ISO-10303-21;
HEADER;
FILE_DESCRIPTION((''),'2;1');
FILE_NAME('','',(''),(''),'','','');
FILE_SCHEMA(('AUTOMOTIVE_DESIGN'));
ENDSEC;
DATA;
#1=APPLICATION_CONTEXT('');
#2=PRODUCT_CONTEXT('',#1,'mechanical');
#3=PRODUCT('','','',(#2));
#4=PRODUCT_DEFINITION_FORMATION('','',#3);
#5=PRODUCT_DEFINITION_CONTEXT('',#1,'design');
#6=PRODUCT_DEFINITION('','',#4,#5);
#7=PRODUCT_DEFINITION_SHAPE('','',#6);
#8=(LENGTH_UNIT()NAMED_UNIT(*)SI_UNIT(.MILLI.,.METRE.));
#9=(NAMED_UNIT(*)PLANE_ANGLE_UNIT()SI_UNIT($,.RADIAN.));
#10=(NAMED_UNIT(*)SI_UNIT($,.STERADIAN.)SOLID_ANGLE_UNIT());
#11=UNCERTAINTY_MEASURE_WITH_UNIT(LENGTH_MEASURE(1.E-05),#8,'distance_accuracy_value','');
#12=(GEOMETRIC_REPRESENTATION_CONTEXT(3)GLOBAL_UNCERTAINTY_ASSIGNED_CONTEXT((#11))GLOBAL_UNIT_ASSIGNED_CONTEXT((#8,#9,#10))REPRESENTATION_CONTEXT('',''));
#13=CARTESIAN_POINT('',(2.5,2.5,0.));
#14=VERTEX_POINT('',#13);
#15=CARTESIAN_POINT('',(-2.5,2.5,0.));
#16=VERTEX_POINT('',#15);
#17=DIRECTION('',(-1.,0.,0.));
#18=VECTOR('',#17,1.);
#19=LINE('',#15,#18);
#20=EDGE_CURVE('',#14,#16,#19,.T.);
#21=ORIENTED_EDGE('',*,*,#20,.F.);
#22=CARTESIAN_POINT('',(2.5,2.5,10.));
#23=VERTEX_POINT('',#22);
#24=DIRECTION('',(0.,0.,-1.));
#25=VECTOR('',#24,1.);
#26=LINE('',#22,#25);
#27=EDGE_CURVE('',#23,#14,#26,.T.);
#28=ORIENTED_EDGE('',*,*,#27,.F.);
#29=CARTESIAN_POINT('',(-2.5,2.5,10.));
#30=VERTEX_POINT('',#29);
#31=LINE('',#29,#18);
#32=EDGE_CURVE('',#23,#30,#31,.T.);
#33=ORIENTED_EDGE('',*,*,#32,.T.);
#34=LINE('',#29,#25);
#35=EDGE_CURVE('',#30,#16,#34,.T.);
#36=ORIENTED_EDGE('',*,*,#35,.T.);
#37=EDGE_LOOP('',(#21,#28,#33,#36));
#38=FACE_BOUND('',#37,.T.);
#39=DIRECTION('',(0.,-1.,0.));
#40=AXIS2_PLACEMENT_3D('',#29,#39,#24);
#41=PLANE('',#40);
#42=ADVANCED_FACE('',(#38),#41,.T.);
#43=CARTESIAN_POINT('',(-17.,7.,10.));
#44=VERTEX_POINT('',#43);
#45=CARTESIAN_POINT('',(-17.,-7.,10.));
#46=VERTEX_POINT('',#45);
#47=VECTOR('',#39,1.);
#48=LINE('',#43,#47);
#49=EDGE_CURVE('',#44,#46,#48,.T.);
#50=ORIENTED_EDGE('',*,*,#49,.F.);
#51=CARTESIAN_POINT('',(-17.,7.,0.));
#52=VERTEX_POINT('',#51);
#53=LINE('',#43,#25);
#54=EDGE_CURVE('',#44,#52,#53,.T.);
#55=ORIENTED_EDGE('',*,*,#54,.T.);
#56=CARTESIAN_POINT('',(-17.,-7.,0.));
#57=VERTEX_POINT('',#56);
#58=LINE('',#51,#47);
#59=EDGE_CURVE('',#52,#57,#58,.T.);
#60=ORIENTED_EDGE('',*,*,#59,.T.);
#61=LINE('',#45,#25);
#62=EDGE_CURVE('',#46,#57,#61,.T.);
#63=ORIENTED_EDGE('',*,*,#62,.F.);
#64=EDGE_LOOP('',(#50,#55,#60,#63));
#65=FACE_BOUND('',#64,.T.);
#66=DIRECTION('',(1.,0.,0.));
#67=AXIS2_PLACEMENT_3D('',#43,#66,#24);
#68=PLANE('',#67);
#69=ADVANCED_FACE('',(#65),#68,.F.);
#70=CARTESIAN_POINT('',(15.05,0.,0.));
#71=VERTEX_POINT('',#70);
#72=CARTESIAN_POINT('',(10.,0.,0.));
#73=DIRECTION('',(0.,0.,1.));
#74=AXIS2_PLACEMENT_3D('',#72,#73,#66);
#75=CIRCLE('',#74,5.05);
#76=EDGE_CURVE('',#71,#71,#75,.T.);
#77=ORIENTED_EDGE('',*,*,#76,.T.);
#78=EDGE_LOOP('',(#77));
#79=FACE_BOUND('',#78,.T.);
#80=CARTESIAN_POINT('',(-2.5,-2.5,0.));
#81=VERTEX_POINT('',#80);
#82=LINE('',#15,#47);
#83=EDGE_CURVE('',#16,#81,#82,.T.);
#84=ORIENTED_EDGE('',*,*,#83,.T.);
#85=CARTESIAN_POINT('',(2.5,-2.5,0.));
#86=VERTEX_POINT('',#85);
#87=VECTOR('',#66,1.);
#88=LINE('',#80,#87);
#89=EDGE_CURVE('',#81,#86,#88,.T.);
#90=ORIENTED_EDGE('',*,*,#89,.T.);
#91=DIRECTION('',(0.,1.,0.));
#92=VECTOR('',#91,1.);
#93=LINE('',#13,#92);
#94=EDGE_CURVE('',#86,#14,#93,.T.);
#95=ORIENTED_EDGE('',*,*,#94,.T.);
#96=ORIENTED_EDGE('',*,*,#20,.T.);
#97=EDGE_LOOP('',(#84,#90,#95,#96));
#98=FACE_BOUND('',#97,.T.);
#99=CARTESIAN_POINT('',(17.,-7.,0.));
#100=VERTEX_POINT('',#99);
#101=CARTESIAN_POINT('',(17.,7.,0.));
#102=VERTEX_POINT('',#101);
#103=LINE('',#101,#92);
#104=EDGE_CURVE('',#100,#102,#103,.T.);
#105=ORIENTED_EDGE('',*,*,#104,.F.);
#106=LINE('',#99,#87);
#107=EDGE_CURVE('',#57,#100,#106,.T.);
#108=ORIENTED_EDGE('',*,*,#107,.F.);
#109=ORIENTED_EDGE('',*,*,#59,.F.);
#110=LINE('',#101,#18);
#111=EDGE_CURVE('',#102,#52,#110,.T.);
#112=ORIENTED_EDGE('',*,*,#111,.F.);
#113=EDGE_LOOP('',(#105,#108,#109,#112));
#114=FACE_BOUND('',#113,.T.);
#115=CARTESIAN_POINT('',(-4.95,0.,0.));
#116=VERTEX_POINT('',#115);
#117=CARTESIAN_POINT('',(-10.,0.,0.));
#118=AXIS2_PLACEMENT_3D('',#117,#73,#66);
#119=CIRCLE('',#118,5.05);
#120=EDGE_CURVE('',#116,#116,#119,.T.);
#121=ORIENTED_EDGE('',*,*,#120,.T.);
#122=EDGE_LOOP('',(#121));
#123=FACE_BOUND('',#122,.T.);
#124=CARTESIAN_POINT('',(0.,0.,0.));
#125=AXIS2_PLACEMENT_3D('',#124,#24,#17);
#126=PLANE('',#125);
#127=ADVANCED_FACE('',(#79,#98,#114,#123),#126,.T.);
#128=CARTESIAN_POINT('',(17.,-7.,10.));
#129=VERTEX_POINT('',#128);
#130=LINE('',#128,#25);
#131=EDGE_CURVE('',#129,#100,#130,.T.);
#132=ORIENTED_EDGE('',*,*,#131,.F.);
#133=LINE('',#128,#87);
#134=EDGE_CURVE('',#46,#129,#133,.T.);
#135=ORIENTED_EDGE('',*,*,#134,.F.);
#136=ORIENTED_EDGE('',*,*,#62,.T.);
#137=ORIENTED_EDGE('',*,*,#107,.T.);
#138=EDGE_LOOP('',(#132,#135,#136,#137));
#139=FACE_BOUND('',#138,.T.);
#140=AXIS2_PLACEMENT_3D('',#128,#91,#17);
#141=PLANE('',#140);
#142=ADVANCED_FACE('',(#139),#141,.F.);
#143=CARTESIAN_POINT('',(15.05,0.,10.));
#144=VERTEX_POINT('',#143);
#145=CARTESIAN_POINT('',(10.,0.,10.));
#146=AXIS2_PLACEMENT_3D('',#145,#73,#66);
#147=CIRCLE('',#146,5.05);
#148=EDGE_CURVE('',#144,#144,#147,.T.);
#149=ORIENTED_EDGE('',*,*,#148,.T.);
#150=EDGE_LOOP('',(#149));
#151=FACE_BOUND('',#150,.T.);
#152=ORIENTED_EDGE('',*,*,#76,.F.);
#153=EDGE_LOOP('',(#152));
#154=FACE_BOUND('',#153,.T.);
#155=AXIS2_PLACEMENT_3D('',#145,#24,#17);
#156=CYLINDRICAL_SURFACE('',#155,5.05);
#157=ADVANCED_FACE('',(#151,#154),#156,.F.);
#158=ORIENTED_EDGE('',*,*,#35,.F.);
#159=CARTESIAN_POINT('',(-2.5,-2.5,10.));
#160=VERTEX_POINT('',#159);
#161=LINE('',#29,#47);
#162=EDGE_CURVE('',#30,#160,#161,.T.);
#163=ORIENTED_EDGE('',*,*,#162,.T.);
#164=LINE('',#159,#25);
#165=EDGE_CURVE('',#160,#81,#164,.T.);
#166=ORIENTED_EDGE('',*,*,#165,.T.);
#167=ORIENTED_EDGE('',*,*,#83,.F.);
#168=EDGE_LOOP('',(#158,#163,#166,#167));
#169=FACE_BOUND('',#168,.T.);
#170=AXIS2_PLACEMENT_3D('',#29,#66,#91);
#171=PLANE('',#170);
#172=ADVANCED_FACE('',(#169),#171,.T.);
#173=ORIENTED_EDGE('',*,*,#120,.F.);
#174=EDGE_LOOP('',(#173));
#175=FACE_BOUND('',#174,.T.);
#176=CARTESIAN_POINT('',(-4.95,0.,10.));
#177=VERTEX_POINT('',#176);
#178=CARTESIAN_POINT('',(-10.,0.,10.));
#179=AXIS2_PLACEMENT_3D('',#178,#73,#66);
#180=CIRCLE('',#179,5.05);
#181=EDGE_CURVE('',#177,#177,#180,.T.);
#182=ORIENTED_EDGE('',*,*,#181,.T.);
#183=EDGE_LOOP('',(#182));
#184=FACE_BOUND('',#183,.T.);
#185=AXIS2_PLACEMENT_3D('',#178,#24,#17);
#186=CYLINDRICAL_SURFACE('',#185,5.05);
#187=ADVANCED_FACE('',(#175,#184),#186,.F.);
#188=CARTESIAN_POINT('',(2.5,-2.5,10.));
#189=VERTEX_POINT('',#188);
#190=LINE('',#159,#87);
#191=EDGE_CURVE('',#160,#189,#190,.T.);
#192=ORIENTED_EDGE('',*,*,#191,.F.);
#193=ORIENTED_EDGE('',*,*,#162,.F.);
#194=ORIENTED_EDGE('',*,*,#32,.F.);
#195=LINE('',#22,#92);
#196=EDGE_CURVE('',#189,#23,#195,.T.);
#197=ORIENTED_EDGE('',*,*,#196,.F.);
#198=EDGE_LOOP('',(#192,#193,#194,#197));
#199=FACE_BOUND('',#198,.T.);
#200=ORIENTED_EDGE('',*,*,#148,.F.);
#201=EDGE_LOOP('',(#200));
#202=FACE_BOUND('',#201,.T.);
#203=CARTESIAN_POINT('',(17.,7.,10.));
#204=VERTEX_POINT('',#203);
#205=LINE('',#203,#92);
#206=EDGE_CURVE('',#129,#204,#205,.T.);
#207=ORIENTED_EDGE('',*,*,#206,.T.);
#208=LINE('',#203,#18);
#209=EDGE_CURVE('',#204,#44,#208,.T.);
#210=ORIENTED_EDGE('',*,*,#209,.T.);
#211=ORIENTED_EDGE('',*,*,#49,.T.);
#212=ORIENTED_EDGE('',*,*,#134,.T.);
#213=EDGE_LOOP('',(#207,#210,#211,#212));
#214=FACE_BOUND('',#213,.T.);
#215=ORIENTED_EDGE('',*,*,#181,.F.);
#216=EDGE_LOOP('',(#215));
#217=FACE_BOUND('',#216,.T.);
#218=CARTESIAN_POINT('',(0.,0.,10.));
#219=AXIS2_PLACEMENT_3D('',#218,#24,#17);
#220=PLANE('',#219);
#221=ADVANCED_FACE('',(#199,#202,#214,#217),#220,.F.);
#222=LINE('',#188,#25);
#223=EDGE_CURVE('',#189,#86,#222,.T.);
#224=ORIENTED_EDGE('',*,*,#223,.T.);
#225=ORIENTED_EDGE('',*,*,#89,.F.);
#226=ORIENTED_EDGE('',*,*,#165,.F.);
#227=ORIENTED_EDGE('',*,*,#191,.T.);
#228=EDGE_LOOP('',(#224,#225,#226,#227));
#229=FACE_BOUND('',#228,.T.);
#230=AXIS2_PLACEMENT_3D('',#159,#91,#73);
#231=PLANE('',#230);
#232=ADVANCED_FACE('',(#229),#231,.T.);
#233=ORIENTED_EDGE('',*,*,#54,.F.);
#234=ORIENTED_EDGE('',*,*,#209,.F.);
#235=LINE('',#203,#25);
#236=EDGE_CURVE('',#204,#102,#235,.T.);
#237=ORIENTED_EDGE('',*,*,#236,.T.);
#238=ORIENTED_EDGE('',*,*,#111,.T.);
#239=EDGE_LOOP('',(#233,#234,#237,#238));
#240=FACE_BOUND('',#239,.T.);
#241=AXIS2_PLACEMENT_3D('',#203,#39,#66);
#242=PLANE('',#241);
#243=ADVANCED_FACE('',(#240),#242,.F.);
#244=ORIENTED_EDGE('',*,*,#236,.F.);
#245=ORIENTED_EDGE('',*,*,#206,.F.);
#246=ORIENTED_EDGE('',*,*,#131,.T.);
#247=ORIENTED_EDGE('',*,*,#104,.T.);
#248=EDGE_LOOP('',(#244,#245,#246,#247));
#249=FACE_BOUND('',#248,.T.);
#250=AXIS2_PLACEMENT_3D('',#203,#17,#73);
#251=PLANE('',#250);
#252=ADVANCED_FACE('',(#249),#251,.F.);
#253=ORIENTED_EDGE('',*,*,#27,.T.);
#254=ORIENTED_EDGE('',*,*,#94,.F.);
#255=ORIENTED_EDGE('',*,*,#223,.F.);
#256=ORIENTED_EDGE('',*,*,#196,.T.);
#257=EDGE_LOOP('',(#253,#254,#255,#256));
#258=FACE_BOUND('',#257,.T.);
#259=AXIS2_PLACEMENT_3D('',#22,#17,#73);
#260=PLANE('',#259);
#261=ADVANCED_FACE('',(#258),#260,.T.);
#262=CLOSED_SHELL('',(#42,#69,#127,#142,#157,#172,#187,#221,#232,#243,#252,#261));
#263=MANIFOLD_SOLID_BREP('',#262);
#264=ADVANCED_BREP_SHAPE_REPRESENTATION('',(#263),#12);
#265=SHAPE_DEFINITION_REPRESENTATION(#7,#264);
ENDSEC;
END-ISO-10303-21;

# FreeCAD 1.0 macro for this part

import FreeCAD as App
import Part
import Sketcher
from FreeCAD import Vector
Q = App.Units.Quantity


def add_polygon(sketch, points):
    """Adds a closed chain of lines whose ends are joined by coincident constraints."""
    first, n = sketch.GeometryCount, len(points)
    for a, b in zip(points, points[1:] + points[:1]):
        sketch.addGeometry(Part.LineSegment(App.Vector(*a, 0), App.Vector(*b, 0)), False)
    for i in range(n):
        sketch.addConstraint(Sketcher.Constraint("Coincident", first + i, 2, first + (i + 1) % n, 1))

doc = App.newDocument("Part")
body = doc.addObject("PartDesign::Body", "Body")

sketch1 = body.newObject("Sketcher::SketchObject", "Sketch")
sketch1.AttachmentSupport = (doc.getObject("XY_Plane"), [""])
sketch1.MapMode = "FlatFace"
add_polygon(sketch1, [(-17, 7), (-17, -7), (17, -7), (17, 7)])
sketch1.addGeometry(Part.Circle(Vector(-10, 0, 0), Vector(0, 0, 1), 5), False)
add_polygon(sketch1, [(2, -2), (-2, -2), (-2, 2), (2, 2)])
sketch1.addGeometry(Part.Circle(Vector(10, 0, 0), Vector(0, 0, 1), 5), False)
sketch1.addConstraint(Sketcher.Constraint("Vertical", 0))
sketch1.addConstraint(Sketcher.Constraint("Horizontal", 1))
sketch1.addConstraint(Sketcher.Constraint("Vertical", 2))
sketch1.addConstraint(Sketcher.Constraint("Horizontal", 3))
sketch1.addConstraint(Sketcher.Constraint("Horizontal", 5))
sketch1.addConstraint(Sketcher.Constraint("Vertical", 6))
sketch1.addConstraint(Sketcher.Constraint("Horizontal", 7))
sketch1.addConstraint(Sketcher.Constraint("Vertical", 8))
sketch1.addConstraint(Sketcher.Constraint("Equal", 4, 9))
sketch1.addConstraint(Sketcher.Constraint("Symmetric", 4, 3, 9, 3, -1, 1))
sketch1.addConstraint(Sketcher.Constraint("Symmetric", 0, 2, 2, 2, -1, 1))
sketch1.addConstraint(Sketcher.Constraint("Symmetric", 5, 2, 7, 2, -1, 1))
sketch1.addConstraint(Sketcher.Constraint("PointOnObject", 4, 3, -1))
sketch1.addConstraint(Sketcher.Constraint("Equal", 7, 6))
sketch1.addConstraint(Sketcher.Constraint("Diameter", 4, Q("10.1 mm")))
sketch1.addConstraint(Sketcher.Constraint("DistanceX", 1, 1, 1, 2, Q("34 mm")))
sketch1.addConstraint(Sketcher.Constraint("DistanceX", 5, 2, 5, 1, Q("5 mm")))
sketch1.addConstraint(Sketcher.Constraint("DistanceY", 0, 2, 0, 1, Q("14 mm")))
sketch1.addConstraint(Sketcher.Constraint("DistanceX", 4, 3, -1, 1, Q("10 mm")))
pad1 = body.newObject("PartDesign::Pad", "Pad")
pad1.Profile = sketch1
pad1.Length = 10

doc.recompute()
